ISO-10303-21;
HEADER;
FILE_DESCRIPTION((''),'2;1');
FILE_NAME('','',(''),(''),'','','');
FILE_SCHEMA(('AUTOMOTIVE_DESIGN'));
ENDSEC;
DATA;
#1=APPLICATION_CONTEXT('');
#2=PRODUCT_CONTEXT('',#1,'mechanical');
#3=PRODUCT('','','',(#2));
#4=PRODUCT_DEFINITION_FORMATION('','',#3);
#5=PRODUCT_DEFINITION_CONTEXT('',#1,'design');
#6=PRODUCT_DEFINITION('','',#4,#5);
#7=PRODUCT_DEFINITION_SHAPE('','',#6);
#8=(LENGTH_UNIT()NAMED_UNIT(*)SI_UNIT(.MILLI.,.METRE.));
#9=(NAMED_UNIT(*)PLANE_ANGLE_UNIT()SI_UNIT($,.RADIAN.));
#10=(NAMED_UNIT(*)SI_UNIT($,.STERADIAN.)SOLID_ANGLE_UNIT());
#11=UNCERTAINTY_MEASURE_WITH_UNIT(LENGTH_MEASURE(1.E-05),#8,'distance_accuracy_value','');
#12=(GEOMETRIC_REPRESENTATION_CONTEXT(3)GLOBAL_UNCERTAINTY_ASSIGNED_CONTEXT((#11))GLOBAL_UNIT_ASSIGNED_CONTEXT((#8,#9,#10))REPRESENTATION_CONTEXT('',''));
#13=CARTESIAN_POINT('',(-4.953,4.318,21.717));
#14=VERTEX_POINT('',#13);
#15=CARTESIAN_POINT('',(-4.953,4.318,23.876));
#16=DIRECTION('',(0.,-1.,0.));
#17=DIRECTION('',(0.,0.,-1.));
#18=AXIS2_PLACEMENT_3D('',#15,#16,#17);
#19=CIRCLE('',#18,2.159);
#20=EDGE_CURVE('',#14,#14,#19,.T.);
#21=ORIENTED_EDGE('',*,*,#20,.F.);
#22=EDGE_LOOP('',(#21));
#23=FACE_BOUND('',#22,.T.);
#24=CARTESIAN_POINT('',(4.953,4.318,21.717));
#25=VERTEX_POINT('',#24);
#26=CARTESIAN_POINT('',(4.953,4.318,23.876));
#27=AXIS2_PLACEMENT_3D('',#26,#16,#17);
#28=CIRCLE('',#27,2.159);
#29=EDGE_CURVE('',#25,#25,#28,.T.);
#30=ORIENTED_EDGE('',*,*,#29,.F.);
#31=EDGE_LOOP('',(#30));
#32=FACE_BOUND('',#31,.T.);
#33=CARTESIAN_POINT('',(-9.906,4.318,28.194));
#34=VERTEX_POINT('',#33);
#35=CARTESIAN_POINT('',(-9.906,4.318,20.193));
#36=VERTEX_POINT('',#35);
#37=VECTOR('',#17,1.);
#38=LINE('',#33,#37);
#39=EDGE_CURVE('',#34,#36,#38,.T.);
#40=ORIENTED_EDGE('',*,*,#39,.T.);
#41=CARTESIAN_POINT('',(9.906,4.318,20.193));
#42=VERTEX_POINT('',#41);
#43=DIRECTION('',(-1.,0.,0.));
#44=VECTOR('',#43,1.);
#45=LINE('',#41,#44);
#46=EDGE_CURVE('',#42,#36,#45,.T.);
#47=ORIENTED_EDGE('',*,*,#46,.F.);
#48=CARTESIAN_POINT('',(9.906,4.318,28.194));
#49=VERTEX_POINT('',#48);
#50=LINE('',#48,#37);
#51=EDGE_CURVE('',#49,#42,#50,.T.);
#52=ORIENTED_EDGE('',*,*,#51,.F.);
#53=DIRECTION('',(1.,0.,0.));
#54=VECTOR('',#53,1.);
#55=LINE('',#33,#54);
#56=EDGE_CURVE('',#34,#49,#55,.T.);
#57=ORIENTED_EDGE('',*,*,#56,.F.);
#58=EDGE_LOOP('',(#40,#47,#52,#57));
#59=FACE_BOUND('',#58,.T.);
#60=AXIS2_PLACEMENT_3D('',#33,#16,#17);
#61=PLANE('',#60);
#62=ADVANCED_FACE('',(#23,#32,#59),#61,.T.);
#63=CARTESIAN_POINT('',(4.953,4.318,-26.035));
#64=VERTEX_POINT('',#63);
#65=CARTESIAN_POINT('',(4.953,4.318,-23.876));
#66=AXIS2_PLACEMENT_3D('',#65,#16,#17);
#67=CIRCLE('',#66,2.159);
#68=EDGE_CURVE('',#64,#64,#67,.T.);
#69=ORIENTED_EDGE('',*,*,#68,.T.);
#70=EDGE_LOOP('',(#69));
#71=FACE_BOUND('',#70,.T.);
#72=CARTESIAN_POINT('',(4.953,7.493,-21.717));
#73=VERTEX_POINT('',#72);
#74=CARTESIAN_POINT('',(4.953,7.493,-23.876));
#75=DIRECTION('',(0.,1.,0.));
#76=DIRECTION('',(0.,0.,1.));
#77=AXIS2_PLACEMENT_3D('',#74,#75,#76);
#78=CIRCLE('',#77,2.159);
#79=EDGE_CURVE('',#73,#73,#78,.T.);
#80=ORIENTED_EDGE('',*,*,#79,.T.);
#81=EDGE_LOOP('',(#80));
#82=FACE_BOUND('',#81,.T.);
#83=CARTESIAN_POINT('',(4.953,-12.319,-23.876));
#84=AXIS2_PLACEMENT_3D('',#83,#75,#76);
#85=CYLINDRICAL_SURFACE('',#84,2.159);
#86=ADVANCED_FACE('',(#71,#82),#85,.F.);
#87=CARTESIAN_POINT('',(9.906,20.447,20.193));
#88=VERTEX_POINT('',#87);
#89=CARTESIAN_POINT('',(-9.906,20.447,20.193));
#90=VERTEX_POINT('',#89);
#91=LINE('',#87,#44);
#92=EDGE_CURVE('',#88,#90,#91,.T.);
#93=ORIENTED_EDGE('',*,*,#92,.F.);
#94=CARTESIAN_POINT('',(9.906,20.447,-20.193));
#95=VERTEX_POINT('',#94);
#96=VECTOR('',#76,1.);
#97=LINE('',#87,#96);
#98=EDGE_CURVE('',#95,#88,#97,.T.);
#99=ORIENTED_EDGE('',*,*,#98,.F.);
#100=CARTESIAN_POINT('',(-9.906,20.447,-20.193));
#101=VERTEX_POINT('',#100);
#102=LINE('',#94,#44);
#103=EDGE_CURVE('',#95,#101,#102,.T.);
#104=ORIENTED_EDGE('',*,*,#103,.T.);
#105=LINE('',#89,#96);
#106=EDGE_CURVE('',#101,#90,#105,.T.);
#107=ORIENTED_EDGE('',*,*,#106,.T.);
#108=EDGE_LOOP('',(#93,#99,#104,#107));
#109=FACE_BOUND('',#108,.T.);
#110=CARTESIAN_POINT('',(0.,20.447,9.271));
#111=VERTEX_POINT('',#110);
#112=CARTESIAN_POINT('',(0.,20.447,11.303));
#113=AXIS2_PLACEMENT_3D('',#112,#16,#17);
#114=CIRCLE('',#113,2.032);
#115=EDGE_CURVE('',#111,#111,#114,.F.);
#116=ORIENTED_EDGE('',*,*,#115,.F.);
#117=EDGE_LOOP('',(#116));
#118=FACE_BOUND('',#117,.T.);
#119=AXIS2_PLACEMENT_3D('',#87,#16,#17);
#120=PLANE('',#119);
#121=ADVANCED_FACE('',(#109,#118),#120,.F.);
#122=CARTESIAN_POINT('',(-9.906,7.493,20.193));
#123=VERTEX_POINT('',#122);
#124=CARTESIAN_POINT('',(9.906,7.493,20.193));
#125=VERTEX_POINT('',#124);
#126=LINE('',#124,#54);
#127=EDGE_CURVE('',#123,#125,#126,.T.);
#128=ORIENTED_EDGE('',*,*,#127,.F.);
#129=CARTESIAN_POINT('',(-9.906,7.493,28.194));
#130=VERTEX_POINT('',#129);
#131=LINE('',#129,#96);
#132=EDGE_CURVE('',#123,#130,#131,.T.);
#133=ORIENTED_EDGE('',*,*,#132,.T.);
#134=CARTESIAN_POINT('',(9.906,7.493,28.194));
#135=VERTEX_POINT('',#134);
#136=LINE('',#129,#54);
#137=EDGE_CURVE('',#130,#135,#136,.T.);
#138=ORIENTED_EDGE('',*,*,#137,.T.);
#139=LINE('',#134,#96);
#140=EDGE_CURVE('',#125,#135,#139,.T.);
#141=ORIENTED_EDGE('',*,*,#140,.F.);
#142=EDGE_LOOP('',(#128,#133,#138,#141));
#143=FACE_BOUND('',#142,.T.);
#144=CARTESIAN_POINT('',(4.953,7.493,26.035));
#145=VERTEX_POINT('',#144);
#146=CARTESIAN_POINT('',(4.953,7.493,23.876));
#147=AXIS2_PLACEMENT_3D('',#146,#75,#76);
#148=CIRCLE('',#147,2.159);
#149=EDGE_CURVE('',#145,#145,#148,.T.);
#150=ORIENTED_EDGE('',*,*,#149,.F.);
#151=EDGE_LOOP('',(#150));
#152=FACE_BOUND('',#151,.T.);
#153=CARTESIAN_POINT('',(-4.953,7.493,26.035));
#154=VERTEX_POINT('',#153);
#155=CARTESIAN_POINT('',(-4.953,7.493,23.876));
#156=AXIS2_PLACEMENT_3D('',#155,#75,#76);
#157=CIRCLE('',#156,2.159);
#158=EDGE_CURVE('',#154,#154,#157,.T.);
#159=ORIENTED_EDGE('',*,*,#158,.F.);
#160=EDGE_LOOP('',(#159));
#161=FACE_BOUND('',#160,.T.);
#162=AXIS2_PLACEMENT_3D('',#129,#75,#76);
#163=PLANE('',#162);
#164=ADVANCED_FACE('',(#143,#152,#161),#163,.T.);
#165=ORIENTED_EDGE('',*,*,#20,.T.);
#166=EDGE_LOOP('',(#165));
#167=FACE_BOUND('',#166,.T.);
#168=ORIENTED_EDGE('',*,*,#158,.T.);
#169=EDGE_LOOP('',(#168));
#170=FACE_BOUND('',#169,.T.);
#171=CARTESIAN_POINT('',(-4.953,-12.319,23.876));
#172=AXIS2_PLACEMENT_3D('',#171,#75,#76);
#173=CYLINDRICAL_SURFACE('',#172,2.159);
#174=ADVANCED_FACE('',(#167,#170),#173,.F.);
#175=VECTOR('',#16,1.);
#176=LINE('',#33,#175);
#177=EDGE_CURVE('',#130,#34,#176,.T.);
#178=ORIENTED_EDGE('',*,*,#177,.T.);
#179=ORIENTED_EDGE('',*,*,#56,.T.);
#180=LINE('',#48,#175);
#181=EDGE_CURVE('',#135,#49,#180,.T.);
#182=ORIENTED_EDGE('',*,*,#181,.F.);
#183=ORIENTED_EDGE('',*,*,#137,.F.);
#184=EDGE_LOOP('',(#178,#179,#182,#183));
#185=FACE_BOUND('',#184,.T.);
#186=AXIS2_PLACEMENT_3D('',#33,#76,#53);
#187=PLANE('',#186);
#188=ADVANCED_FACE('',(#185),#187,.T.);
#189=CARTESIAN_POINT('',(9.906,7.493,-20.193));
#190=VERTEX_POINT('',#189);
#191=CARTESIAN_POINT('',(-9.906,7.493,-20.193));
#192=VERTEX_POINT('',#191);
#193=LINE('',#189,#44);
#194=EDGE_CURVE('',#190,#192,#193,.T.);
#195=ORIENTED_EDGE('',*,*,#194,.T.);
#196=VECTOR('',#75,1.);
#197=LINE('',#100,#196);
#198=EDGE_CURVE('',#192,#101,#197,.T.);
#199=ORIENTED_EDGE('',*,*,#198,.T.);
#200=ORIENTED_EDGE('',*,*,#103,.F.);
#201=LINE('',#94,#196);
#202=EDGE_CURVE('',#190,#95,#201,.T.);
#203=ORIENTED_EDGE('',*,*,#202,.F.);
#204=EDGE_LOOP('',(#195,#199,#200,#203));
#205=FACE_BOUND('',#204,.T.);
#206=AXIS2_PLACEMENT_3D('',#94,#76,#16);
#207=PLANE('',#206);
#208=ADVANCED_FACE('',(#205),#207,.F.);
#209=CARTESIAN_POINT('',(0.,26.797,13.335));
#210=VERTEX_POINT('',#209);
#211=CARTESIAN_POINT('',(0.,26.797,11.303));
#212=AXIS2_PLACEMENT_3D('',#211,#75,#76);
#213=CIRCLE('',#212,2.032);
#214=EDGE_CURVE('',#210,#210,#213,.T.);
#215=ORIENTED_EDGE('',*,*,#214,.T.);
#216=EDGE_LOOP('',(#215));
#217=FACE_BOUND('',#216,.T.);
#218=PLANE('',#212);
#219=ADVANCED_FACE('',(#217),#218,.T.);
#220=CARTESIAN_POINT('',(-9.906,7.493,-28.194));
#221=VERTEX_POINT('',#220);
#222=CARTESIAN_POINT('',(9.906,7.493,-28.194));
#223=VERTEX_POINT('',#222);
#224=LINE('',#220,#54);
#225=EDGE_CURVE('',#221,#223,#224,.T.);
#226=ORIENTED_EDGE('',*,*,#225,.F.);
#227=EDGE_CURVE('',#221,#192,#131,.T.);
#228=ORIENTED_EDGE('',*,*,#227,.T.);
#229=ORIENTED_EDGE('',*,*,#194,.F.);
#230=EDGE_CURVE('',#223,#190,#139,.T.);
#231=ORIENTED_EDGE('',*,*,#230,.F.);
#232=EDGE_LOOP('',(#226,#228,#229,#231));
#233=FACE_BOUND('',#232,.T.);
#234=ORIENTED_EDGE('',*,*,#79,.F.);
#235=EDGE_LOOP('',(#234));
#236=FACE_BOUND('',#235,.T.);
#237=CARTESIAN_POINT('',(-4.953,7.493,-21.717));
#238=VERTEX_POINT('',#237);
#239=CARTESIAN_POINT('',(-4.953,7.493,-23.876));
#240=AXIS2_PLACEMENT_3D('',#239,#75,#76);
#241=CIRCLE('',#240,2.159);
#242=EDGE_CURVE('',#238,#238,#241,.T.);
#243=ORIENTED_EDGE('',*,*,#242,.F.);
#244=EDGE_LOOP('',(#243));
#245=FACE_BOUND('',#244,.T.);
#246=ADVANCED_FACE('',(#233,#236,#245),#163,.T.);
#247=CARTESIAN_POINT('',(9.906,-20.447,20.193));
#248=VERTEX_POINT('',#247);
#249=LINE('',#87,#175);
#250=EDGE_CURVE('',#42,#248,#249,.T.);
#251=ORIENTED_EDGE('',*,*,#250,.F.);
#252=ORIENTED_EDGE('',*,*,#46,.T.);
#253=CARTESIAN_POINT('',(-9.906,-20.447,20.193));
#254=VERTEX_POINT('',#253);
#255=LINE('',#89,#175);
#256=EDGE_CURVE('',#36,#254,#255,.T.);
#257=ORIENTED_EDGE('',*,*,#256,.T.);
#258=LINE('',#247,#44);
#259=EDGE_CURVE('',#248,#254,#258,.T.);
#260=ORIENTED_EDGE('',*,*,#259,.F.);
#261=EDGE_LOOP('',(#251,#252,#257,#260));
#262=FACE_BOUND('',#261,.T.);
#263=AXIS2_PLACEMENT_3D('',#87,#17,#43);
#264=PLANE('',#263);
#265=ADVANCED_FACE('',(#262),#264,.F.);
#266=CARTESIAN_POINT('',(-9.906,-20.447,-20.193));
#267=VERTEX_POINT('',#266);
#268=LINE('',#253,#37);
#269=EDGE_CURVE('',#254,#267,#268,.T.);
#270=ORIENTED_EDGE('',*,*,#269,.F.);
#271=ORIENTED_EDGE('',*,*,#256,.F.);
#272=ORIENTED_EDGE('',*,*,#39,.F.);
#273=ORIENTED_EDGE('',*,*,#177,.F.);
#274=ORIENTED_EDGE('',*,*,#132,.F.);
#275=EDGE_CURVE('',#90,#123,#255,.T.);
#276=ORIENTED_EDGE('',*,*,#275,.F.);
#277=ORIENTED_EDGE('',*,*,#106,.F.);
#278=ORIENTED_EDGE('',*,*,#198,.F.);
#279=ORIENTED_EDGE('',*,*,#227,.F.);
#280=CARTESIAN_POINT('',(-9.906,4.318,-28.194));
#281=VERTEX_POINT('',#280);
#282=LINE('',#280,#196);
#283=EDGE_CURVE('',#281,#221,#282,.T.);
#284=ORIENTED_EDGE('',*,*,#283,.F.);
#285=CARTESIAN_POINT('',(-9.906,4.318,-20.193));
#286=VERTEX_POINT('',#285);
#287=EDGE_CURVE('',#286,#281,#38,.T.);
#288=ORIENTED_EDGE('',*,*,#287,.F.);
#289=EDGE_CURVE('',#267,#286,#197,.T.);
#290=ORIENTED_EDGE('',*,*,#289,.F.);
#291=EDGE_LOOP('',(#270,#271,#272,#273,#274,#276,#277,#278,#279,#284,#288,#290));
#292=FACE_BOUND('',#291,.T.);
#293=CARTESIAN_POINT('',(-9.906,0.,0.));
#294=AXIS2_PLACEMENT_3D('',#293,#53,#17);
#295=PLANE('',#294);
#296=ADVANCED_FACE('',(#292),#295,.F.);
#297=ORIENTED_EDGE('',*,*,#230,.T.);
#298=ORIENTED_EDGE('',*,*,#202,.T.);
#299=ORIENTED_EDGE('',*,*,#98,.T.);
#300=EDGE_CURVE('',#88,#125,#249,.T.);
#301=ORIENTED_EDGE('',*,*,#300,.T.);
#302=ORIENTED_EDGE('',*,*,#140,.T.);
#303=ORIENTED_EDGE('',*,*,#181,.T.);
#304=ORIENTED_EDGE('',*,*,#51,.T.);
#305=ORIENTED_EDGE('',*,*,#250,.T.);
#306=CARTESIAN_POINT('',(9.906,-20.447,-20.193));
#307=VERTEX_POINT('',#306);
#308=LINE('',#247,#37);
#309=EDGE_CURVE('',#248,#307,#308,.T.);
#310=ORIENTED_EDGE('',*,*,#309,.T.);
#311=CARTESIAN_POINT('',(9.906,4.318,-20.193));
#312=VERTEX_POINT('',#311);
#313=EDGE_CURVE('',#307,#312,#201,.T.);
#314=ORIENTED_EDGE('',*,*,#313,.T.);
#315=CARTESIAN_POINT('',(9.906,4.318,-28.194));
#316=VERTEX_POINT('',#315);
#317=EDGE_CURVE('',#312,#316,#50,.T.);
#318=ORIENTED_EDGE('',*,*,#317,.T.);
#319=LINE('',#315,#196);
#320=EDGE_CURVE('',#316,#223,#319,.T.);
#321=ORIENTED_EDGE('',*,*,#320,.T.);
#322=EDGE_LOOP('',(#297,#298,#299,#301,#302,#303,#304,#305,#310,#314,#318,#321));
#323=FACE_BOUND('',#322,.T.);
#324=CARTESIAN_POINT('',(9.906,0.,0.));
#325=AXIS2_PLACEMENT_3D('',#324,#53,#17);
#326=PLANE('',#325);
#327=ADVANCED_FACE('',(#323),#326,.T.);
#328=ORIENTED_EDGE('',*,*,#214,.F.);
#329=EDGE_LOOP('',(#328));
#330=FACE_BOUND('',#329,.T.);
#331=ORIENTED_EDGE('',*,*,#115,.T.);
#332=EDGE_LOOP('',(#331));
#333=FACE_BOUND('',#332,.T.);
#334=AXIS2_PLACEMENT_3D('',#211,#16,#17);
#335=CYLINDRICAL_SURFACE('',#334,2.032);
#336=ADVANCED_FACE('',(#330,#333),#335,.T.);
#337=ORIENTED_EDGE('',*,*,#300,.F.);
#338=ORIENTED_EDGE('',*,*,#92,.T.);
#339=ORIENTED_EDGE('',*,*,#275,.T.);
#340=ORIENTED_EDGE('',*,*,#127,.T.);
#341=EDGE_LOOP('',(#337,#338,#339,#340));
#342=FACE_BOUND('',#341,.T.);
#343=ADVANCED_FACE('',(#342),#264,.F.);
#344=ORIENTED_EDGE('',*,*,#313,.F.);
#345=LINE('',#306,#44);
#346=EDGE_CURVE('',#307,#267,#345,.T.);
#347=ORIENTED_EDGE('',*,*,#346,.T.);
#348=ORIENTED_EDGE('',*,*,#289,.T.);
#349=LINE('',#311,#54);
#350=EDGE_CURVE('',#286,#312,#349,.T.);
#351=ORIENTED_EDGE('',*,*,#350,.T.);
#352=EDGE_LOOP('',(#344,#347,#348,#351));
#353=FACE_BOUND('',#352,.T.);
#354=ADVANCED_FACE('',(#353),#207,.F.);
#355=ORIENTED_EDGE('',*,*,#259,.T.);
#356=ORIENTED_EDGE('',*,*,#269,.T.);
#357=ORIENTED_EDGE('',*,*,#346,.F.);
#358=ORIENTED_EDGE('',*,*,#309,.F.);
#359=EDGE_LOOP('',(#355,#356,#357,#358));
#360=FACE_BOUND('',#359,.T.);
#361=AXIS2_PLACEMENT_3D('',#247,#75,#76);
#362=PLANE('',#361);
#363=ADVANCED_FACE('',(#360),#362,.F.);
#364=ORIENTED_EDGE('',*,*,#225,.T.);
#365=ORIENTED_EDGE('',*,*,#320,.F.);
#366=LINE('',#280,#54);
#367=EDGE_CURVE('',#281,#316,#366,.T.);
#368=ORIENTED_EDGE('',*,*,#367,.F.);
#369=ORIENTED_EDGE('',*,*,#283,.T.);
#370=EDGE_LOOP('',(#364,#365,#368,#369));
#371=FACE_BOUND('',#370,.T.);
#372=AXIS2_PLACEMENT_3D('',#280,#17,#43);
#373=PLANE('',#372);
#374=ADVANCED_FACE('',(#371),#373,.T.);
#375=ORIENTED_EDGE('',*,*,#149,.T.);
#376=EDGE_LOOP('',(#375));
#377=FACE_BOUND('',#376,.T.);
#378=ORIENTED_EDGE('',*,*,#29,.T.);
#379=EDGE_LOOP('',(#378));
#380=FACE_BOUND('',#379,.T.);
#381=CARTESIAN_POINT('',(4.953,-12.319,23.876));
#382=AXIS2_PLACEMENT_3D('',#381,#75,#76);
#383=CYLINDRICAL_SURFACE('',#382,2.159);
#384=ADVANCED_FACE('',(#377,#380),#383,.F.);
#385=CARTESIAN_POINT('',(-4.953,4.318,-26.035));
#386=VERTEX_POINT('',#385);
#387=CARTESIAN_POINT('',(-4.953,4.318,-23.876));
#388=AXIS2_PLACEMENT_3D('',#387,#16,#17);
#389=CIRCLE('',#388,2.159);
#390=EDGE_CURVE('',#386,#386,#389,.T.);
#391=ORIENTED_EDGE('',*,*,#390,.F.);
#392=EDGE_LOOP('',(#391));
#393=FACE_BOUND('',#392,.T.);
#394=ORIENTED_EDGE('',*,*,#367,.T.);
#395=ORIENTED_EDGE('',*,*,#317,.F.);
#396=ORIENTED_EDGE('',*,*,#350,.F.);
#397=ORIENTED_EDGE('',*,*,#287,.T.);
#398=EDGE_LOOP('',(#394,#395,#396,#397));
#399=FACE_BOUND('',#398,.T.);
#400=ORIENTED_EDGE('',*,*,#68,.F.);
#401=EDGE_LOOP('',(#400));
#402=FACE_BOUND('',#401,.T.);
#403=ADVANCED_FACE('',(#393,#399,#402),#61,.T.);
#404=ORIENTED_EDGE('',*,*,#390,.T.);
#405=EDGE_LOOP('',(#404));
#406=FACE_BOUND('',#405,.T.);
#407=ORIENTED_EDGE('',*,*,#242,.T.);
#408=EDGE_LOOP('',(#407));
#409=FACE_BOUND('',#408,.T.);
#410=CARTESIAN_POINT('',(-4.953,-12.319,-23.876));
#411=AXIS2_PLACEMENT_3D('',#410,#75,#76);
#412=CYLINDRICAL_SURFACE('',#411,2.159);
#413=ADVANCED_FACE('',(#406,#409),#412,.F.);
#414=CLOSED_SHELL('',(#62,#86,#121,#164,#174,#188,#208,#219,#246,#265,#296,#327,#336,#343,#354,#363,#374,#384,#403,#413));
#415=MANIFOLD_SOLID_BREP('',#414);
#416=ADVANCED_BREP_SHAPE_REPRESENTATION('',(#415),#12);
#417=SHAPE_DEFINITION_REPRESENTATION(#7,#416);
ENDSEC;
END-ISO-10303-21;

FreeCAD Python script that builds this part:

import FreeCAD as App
import Part
import Sketcher
from FreeCAD import Vector
Q = App.Units.Quantity

doc = App.newDocument("Part")
params = doc.addObject("Spreadsheet::Sheet", "Params")
for row, (alias, value) in enumerate([
    ("sketch1_width", "1.61 in"),
    ("sketch1_height", "1.59 in"),
    ("pad1_length", "0.78 in"),
    ("sketch2_height", "2.22 in"),
    ("sketch2_width", "0.125 in"),
    ("sketch3_diameter", "0.17 in"),
    ("pocket1_length", "0.78 in"),
    ("sketch4_diameter", "0.16 in"),
    ("pad3_length", "0.25 in"),
], start=1):
    params.set(f"A{row}", alias)
    params.set(f"B{row}", "=" + value)
    params.setAlias(f"B{row}", alias)

body = doc.addObject("PartDesign::Body", "Body")

sketch1 = doc.addObject("Sketcher::SketchObject", "Sketch")
body.addObject(sketch1)
sketch1.AttachmentSupport = (doc.YZ_Plane, [""])
sketch1.MapMode = "FlatFace"
sketch1.addGeometry([
    Part.LineSegment(Vector(20, 20, 0), Vector(-20, 20, 0)),
    Part.LineSegment(Vector(-20, 20, 0), Vector(-20, -20, 0)),
    Part.LineSegment(Vector(-20, -20, 0), Vector(20, -20, 0)),
    Part.LineSegment(Vector(20, -20, 0), Vector(20, 20, 0)),
], False)
sketch1.addConstraint([
    Sketcher.Constraint("Coincident", 0, 2, 1, 1),
    Sketcher.Constraint("Coincident", 1, 2, 2, 1),
    Sketcher.Constraint("Coincident", 2, 2, 3, 1),
    Sketcher.Constraint("Coincident", 3, 2, 0, 1),
    Sketcher.Constraint("Horizontal", 0),
    Sketcher.Constraint("Vertical", 1),
    Sketcher.Constraint("Horizontal", 2),
    Sketcher.Constraint("Vertical", 3),
    Sketcher.Constraint("Symmetric", 0, 2, 2, 2, -1, 1),
    Sketcher.Constraint("DistanceX", 0, 2, 0, 1, Q("1.61 in")),
    Sketcher.Constraint("DistanceY", 1, 2, 1, 1, Q("1.59 in")),
])
sketch1.setExpression("Constraints[9]", "Params.sketch1_width")
sketch1.setExpression("Constraints[10]", "Params.sketch1_height")
pad1 = doc.addObject("PartDesign::Pad", "Pad")
body.addObject(pad1)
pad1.Profile = sketch1
pad1.setExpression("Length", "Params.pad1_length")
pad1.Midplane = True

sketch2 = doc.addObject("Sketcher::SketchObject", "Sketch001")
body.addObject(sketch2)
sketch2.AttachmentSupport = (doc.YZ_Plane, [""])
sketch2.MapMode = "FlatFace"
sketch2.AttachmentOffset = App.Placement(Vector(0, 0, 0.39 * 25.4), App.Rotation())
sketch2.addGeometry([
    Part.LineSegment(Vector(7.5, 28.2, 0), Vector(4.3, 28.2, 0)),
    Part.LineSegment(Vector(4.3, 28.2, 0), Vector(4.3, -28.2, 0)),
    Part.LineSegment(Vector(4.3, -28.2, 0), Vector(7.5, -28.2, 0)),
    Part.LineSegment(Vector(7.5, -28.2, 0), Vector(7.5, 28.2, 0)),
], False)
sketch2.addConstraint([
    Sketcher.Constraint("Coincident", 0, 2, 1, 1),
    Sketcher.Constraint("Coincident", 1, 2, 2, 1),
    Sketcher.Constraint("Coincident", 2, 2, 3, 1),
    Sketcher.Constraint("Coincident", 3, 2, 0, 1),
    Sketcher.Constraint("Horizontal", 0),
    Sketcher.Constraint("Vertical", 1),
    Sketcher.Constraint("Horizontal", 2),
    Sketcher.Constraint("Vertical", 3),
    Sketcher.Constraint("DistanceY", 1, 2, 1, 1, Q("2.22 in")),
    Sketcher.Constraint("DistanceX", 0, 2, 0, 1, Q("0.125 in")),
    Sketcher.Constraint("DistanceX", -1, 1, 0, 2, Q("0.17 in")),
    Sketcher.Constraint("DistanceY", -1, 1, 0, 2, Q("1.11 in")),
])
sketch2.setExpression("Constraints[8]", "Params.sketch2_height")
sketch2.setExpression("Constraints[9]", "Params.sketch2_width")
pad2 = doc.addObject("PartDesign::Pad", "Pad001")
body.addObject(pad2)
pad2.Profile = sketch2
pad2.Type = "UpToLast"
pad2.Reversed = True

sketch3 = doc.addObject("Sketcher::SketchObject", "Sketch002")
body.addObject(sketch3)
sketch3.AttachmentSupport = (doc.XZ_Plane, [""])
sketch3.MapMode = "FlatFace"
sketch3.AttachmentOffset = App.Placement(Vector(0, 0, -0.295 * 25.4), App.Rotation())
sketch3.addGeometry([
    Part.Circle(Vector(-5, -23.9, 0), Vector(0, 0, 1), 2.2),
    Part.Circle(Vector(5, -23.9, 0), Vector(0, 0, 1), 2.2),
    Part.Circle(Vector(5, 23.9, 0), Vector(0, 0, 1), 2.2),
    Part.Circle(Vector(-5, 23.9, 0), Vector(0, 0, 1), 2.2),
], False)
sketch3.addConstraint([
    Sketcher.Constraint("Equal", 0, 1),
    Sketcher.Constraint("Equal", 1, 2),
    Sketcher.Constraint("Equal", 2, 3),
    Sketcher.Constraint("Symmetric", 0, 3, 2, 3, -1, 1),
    Sketcher.Constraint("Symmetric", 1, 3, 3, 3, -1, 1),
    Sketcher.Constraint("Symmetric", 0, 3, 1, 3, -2),
    Sketcher.Constraint("Diameter", 0, Q("0.17 in")),
    Sketcher.Constraint("DistanceY", 0, 3, -1, 1, Q("0.94 in")),
    Sketcher.Constraint("DistanceX", 0, 3, 1, 3, Q("0.39 in")),
])
sketch3.setExpression("Constraints[6]", "Params.sketch3_diameter")
pocket1 = doc.addObject("PartDesign::Pocket", "Pocket")
body.addObject(pocket1)
pocket1.Profile = sketch3
pocket1.setExpression("Length", "Params.pocket1_length")
pocket1.Reversed = True

sketch4 = doc.addObject("Sketcher::SketchObject", "Sketch003")
body.addObject(sketch4)
sketch4.AttachmentSupport = (doc.XZ_Plane, [""])
sketch4.MapMode = "FlatFace"
sketch4.AttachmentOffset = App.Placement(Vector(0, 0, -0.805 * 25.4), App.Rotation())
sketch4.addGeometry(Part.Circle(Vector(0, 11.3, 0), Vector(0, 0, 1), 2), False)
sketch4.addConstraint([
    Sketcher.Constraint("PointOnObject", 0, 3, -2),
    Sketcher.Constraint("Diameter", 0, Q("0.16 in")),
    Sketcher.Constraint("DistanceY", -1, 1, 0, 3, Q("0.445 in")),
])
sketch4.setExpression("Constraints[1]", "Params.sketch4_diameter")
pad3 = doc.addObject("PartDesign::Pad", "Pad002")
body.addObject(pad3)
pad3.Profile = sketch4
pad3.setExpression("Length", "Params.pad3_length")
pad3.Reversed = True

doc.recompute()
